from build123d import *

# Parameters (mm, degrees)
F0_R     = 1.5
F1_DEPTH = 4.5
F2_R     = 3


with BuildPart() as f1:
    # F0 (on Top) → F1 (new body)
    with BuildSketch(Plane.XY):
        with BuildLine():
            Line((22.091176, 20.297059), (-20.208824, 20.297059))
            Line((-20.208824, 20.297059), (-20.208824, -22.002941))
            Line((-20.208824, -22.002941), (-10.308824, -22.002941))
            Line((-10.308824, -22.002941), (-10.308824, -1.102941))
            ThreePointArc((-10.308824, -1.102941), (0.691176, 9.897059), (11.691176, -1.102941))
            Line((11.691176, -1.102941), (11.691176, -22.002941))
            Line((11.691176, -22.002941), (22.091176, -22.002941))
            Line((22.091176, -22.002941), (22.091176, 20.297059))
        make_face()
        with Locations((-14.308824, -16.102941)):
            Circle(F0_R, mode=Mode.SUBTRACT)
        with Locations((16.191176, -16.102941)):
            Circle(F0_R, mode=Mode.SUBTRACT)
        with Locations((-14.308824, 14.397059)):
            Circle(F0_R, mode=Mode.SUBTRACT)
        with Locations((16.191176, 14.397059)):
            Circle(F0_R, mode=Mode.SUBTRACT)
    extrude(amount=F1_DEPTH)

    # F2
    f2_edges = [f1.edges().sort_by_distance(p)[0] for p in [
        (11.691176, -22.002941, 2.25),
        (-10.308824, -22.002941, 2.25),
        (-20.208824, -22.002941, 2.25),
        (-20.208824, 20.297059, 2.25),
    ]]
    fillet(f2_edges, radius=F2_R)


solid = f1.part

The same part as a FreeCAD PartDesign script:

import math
import FreeCAD as App
import Part
import Sketcher


def edges_at(feature, points):
    """Names of the edges that pass closest to the given points."""
    edges = feature.Shape.Edges
    near = lambda p: min(range(len(edges)), key=lambda i: edges[i].distToShape(Part.Vertex(*p))[0])
    return sorted({f"Edge{near(p) + 1}" for p in points})

doc = App.newDocument("Part")
params = doc.addObject("Spreadsheet::Sheet", "Params")
for row, (alias, value) in enumerate([
    ("sketch1_diameter", "3 mm"),
    ("sketch1_radius", "11 mm"),
    ("sketch1_width", "42.3 mm"),
    ("sketch1_width2", "9.9 mm"),
    ("sketch1_height", "20.9 mm"),
    ("pad1_length", "4.5 mm"),
    ("fillet_radius", "3 mm"),
], start=1):
    params.set(f"A{row}", alias)
    params.set(f"B{row}", "=" + value)
    params.setAlias(f"B{row}", alias)

body = doc.addObject("PartDesign::Body", "Body")

sketch1 = body.newObject("Sketcher::SketchObject", "Sketch")
sketch1.AttachmentSupport = (doc.getObject("XY_Plane"), [""])
sketch1.MapMode = "FlatFace"
sketch1.addGeometry([
    Part.LineSegment(App.Vector(22.1, 20.3, 0), App.Vector(-20.2, 20.3, 0)),
    Part.LineSegment(App.Vector(-20.2, 20.3, 0), App.Vector(-20.2, -22, 0)),
    Part.LineSegment(App.Vector(-20.2, -22, 0), App.Vector(-10.3, -22, 0)),
    Part.LineSegment(App.Vector(-10.3, -22, 0), App.Vector(-10.3, -1.1, 0)),
    Part.ArcOfCircle(Part.Circle(App.Vector(0.7, -1.1, 0), App.Vector(0, 0, 1), 11), math.radians(0), math.radians(180)),
    Part.LineSegment(App.Vector(11.7, -1.1, 0), App.Vector(11.7, -22, 0)),
    Part.LineSegment(App.Vector(11.7, -22, 0), App.Vector(22.1, -22, 0)),
    Part.LineSegment(App.Vector(22.1, -22, 0), App.Vector(22.1, 20.3, 0)),
    Part.Circle(App.Vector(-14.3, -16.1, 0), App.Vector(0, 0, 1), 1.5),
    Part.Circle(App.Vector(16.2, -16.1, 0), App.Vector(0, 0, 1), 1.5),
    Part.Circle(App.Vector(-14.3, 14.4, 0), App.Vector(0, 0, 1), 1.5),
    Part.Circle(App.Vector(16.2, 14.4, 0), App.Vector(0, 0, 1), 1.5),
], False)
sketch1.addConstraint([
    Sketcher.Constraint("Coincident", 0, 2, 1, 1),
    Sketcher.Constraint("Coincident", 1, 2, 2, 1),
    Sketcher.Constraint("Coincident", 2, 2, 3, 1),
    Sketcher.Constraint("Tangent", 3, 2, 4, 2),
    Sketcher.Constraint("Tangent", 4, 1, 5, 1),
    Sketcher.Constraint("Coincident", 5, 2, 6, 1),
    Sketcher.Constraint("Coincident", 6, 2, 7, 1),
    Sketcher.Constraint("Coincident", 7, 2, 0, 1),
    Sketcher.Constraint("Horizontal", 0),
    Sketcher.Constraint("Vertical", 1),
    Sketcher.Constraint("Horizontal", 2),
    Sketcher.Constraint("Vertical", 3),
    Sketcher.Constraint("Vertical", 5),
    Sketcher.Constraint("Horizontal", 6),
    Sketcher.Constraint("Vertical", 7),
    Sketcher.Constraint("Equal", 8, 9),
    Sketcher.Constraint("Equal", 9, 10),
    Sketcher.Constraint("Equal", 10, 11),
    Sketcher.Constraint("Horizontal", 8, 3, 9, 3),
    Sketcher.Constraint("Horizontal", 10, 3, 11, 3),
    Sketcher.Constraint("Horizontal", 2, 2, 5, 2),
    Sketcher.Constraint("Vertical", 8, 3, 10, 3),
    Sketcher.Constraint("Vertical", 9, 3, 11, 3),
    Sketcher.Constraint("Equal", 0, 1),
    Sketcher.Constraint("Diameter", 8, 3.0),
    Sketcher.Constraint("Radius", 4, 11.0),
    Sketcher.Constraint("DistanceX", 0, 2, 0, 1, 42.3),
    Sketcher.Constraint("DistanceX", 2, 1, 2, 2, 9.9),
    Sketcher.Constraint("DistanceY", 3, 1, 3, 2, 20.9),
    Sketcher.Constraint("DistanceX", 8, 3, 4, 3, 15.0),
    Sketcher.Constraint("DistanceY", 8, 3, 4, 3, 15.0),
    Sketcher.Constraint("DistanceX", 4, 3, 9, 3, 15.5),
    Sketcher.Constraint("DistanceY", 4, 3, 10, 3, 15.5),
    Sketcher.Constraint("DistanceY", 4, 3, -1, 1, 1.102941),
    Sketcher.Constraint("DistanceX", -1, 1, 4, 3, 0.691176),
])
sketch1.setExpression("Constraints[24]", "Params.sketch1_diameter")
sketch1.setExpression("Constraints[25]", "Params.sketch1_radius")
sketch1.setExpression("Constraints[26]", "Params.sketch1_width")
sketch1.setExpression("Constraints[27]", "Params.sketch1_width2")
sketch1.setExpression("Constraints[28]", "Params.sketch1_height")
pad1 = body.newObject("PartDesign::Pad", "Pad")
pad1.Profile = sketch1
pad1.setExpression("Length", "Params.pad1_length")
doc.recompute()

fillet = body.newObject("PartDesign::Fillet", "Fillet")
fillet.Base = (pad1, edges_at(pad1, [
    (11.691, -22.003, 2.25),
    (-10.309, -22.003, 2.25),
    (-20.209, -22.003, 2.25),
    (-20.209, 20.297, 2.25),
]))
fillet.setExpression("Radius", "Params.fillet_radius")

doc.recompute()
